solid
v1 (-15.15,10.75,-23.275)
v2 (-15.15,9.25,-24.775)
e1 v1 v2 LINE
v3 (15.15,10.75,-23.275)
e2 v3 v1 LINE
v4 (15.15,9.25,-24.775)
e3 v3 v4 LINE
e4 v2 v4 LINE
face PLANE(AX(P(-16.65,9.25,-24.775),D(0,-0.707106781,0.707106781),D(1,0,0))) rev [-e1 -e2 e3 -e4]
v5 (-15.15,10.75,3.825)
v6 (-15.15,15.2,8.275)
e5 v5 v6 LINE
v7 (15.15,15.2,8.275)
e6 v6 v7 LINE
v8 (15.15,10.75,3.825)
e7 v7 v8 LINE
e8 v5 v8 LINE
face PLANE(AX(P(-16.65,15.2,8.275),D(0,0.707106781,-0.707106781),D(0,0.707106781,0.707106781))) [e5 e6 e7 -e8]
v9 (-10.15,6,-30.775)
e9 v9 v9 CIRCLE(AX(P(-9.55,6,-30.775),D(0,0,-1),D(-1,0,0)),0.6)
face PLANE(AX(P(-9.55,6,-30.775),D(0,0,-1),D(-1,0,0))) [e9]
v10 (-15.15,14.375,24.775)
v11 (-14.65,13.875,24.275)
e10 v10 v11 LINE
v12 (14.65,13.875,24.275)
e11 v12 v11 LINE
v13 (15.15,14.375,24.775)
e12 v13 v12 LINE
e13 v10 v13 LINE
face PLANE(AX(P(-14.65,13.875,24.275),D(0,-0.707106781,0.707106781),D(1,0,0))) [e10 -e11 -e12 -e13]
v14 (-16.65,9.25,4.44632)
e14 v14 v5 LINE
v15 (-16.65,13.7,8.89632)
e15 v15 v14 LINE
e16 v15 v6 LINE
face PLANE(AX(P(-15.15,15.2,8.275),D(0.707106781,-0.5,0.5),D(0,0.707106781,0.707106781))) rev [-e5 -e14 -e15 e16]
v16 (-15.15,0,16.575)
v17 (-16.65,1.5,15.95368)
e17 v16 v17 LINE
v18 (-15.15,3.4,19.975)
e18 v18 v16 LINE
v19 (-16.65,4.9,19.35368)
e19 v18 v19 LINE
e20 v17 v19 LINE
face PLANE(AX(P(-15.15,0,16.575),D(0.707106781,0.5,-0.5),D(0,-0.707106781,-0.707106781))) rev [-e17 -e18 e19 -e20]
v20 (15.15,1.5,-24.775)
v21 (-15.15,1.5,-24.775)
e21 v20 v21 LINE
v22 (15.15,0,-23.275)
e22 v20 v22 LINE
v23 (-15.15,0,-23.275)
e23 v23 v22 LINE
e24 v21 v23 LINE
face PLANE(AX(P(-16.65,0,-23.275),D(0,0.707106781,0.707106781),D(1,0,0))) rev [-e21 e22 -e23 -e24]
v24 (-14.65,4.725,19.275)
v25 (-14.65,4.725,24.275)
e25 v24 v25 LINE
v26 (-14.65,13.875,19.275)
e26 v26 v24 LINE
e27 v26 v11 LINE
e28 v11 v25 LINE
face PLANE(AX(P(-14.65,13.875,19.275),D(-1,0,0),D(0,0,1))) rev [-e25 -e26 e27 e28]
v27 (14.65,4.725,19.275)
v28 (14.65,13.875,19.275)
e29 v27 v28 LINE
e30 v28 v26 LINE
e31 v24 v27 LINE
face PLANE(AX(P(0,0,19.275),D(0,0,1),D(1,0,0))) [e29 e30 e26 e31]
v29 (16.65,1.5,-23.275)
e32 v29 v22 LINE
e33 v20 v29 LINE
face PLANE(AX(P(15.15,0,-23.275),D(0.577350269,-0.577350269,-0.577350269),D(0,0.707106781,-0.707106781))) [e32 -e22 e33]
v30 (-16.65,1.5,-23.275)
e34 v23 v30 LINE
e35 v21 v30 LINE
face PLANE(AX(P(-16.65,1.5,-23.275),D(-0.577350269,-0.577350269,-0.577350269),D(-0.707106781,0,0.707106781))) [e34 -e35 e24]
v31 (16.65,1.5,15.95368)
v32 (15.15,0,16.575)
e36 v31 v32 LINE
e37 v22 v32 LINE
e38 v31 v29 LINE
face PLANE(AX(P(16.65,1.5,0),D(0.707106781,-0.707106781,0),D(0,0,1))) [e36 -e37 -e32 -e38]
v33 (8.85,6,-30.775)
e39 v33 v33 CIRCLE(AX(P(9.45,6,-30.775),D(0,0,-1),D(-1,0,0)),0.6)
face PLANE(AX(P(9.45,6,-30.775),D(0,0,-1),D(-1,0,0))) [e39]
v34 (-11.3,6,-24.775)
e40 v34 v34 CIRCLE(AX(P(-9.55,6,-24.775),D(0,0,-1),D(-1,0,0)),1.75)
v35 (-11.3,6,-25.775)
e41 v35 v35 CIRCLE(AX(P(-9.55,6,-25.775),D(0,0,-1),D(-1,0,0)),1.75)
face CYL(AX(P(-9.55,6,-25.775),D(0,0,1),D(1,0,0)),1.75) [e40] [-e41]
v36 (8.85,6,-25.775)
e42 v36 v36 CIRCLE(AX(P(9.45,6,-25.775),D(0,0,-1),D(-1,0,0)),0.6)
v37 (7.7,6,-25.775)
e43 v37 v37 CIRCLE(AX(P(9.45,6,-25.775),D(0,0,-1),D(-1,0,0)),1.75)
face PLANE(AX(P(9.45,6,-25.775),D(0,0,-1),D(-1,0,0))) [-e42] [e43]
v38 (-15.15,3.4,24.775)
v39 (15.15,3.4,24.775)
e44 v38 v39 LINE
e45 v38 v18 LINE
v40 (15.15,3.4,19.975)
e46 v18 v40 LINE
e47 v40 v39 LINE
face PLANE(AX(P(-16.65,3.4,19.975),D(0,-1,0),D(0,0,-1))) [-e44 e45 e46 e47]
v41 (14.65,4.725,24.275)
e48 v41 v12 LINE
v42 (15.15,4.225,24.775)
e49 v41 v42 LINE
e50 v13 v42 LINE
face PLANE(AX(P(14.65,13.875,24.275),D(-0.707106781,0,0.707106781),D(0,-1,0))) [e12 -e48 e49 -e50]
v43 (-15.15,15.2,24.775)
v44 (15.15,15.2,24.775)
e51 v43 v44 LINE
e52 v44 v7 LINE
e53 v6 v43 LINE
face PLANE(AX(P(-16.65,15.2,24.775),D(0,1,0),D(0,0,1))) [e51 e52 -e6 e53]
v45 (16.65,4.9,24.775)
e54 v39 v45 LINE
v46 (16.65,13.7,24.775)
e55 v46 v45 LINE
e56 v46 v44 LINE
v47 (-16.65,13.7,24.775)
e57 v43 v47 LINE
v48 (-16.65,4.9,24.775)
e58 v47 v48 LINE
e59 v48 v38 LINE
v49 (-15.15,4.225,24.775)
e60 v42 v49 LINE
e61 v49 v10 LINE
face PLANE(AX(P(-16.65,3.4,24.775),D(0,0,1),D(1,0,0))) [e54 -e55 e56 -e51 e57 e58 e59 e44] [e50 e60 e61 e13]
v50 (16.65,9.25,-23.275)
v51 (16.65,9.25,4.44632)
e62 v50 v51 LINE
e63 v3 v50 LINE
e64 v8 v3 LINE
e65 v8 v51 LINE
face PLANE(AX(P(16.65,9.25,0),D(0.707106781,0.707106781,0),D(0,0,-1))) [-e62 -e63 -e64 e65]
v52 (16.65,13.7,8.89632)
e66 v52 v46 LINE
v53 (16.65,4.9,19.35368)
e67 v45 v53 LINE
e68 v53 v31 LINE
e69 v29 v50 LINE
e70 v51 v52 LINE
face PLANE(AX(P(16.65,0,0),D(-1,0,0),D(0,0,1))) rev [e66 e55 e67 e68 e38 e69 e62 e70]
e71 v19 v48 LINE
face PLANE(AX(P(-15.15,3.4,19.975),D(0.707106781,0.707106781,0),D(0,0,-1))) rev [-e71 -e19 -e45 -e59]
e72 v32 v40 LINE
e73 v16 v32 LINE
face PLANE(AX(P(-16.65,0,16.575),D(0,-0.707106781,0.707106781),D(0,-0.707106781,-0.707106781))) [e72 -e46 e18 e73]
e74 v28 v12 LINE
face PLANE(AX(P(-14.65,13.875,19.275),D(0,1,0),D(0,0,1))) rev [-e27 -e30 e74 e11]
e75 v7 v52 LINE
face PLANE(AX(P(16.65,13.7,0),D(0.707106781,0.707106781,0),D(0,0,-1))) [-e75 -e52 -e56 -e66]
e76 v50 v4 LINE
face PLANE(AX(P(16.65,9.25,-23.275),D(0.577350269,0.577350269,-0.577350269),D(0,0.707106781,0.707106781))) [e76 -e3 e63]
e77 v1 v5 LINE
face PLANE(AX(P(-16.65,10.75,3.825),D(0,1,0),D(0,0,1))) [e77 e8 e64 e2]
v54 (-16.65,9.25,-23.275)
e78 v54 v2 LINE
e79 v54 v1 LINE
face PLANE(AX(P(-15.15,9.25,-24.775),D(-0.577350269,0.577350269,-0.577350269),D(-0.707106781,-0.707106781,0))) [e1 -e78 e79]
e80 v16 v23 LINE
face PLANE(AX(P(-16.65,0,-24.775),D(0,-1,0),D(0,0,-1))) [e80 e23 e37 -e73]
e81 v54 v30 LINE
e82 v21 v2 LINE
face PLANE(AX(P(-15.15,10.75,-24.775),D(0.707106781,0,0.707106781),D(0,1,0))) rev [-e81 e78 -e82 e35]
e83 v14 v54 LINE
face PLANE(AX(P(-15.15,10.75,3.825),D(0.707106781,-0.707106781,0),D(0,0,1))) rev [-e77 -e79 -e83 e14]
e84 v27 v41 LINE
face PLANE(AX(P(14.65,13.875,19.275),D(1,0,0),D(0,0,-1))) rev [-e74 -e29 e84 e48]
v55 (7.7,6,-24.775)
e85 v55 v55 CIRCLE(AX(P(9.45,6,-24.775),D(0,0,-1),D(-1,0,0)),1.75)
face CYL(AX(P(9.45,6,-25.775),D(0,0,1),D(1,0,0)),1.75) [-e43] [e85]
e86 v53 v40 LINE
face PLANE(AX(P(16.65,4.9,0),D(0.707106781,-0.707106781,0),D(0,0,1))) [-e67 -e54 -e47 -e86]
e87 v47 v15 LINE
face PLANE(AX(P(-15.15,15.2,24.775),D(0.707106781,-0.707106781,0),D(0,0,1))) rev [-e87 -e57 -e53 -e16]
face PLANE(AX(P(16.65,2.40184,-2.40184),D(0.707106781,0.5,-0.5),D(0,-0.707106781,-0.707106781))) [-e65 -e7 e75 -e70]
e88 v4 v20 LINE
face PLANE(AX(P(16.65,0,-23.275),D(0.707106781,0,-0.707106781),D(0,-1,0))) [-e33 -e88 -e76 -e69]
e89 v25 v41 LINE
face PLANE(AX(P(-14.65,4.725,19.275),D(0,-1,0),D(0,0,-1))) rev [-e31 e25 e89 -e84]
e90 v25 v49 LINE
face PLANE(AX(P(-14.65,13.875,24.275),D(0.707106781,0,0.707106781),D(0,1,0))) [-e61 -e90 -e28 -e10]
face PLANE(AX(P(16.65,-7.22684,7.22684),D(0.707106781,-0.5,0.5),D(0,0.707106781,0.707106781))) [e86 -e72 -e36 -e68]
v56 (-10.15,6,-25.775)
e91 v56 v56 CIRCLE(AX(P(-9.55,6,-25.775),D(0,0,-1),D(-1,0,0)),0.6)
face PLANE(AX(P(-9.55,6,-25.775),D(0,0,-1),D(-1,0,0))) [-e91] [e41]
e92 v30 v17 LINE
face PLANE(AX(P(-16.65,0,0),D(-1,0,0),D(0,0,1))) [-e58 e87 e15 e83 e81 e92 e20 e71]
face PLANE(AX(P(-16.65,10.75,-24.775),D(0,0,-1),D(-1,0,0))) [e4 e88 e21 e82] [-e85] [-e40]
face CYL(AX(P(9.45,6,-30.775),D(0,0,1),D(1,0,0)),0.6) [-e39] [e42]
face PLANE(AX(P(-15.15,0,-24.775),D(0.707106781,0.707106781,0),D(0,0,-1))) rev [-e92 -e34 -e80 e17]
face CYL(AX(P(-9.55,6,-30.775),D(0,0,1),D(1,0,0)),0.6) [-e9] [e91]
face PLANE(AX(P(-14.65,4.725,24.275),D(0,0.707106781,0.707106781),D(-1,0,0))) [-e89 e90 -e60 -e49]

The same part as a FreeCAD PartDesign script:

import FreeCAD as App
import Part
import Sketcher
from FreeCAD import Vector
Q = App.Units.Quantity


def edges_at(feature, points):
    """Names of the edges that pass closest to the given points."""
    edges = feature.Shape.Edges
    near = lambda p: min(range(len(edges)), key=lambda i: edges[i].distToShape(Part.Vertex(*p))[0])
    return sorted({f"Edge{near(p) + 1}" for p in points})


def add_polygon(sketch, points):
    """Adds a closed chain of lines whose ends are joined by coincident constraints."""
    first, n = sketch.GeometryCount, len(points)
    for a, b in zip(points, points[1:] + points[:1]):
        sketch.addGeometry(Part.LineSegment(App.Vector(*a, 0), App.Vector(*b, 0)), False)
    for i in range(n):
        sketch.addConstraint(Sketcher.Constraint("Coincident", first + i, 2, first + (i + 1) % n, 1))

doc = App.newDocument("Part")
body = doc.addObject("PartDesign::Body", "Body")

# Sketch on YZ plane
sketch1 = body.newObject("Sketcher::SketchObject", "Sketch")
sketch1.AttachmentSupport = (doc.getObject("YZ_Plane"), [""])
sketch1.MapMode = "FlatFace"
add_polygon(sketch1, [(15.2, 8.3), (15.2, 24.8), (3.4, 24.8), (3.4, 20), (0, 16.6), (0, -24.8), (10.8, -24.8), (10.8, 3.8)])  # lines 0-7
sketch1.addConstraint(Sketcher.Constraint("Vertical", 0))
sketch1.addConstraint(Sketcher.Constraint("Horizontal", 1))
sketch1.addConstraint(Sketcher.Constraint("Vertical", 2))
sketch1.addConstraint(Sketcher.Constraint("Vertical", 4))
sketch1.addConstraint(Sketcher.Constraint("Horizontal", 5))
sketch1.addConstraint(Sketcher.Constraint("Vertical", 6))
sketch1.addConstraint(Sketcher.Constraint("PointOnObject", 3, 2, -2))
sketch1.addConstraint(Sketcher.Constraint("Parallel", 3, 7))
sketch1.addConstraint(Sketcher.Constraint("Angle", 3, Q("-135 deg")))
sketch1.addConstraint(Sketcher.Constraint("DistanceX", 1, 2, 1, 1, 11.8))
sketch1.addConstraint(Sketcher.Constraint("DistanceY", 0, 1, 0, 2, 16.5))
sketch1.addConstraint(Sketcher.Constraint("DistanceY", 2, 2, 2, 1, 4.8))
sketch1.addConstraint(Sketcher.Constraint("DistanceY", 6, 1, 6, 2, 28.6))
sketch1.addConstraint(Sketcher.Constraint("DistanceX", 5, 1, 5, 2, 10.75))
sketch1.addConstraint(Sketcher.Constraint("DistanceX", -1, 1, 0, 2, 15.2))
sketch1.addConstraint(Sketcher.Constraint("DistanceY", -1, 1, 0, 2, 24.775))
pad1 = body.newObject("PartDesign::Pad", "Pad")
pad1.Profile = sketch1
pad1.Type = "TwoLengths"
pad1.Length = 16.65
pad1.Length2 = 16.65
doc.recompute()

chamfer = body.newObject("PartDesign::Chamfer", "Chamfer")
chamfer.Base = (pad1, edges_at(pad1, [
    (-16.65, 1.7, 18.275),
    (-16.65, 0, -4.1),
    (0, 10.75, -24.775),
    (0, 0, -24.775),
    (-16.65, 5.375, -24.775),
    (-16.65, 10.75, -10.475),
    (-16.65, 12.975, 6.05),
    (16.65, 3.4, 22.375),
    (16.65, 1.7, 18.275),
    (16.65, 0, -4.1),
    (16.65, 5.375, -24.775),
    (16.65, 10.75, -10.475),
    (16.65, 12.975, 6.05),
    (16.65, 15.2, 16.525),
    (-16.65, 15.2, 16.525),
    (-16.65, 3.4, 22.375),
]))
chamfer.Size = 1.5

# Sketch on XY plane
sketch2 = body.newObject("Sketcher::SketchObject", "Sketch001")
sketch2.AttachmentSupport = (doc.getObject("XY_Plane"), [""])
sketch2.MapMode = "FlatFace"
sketch2.AttachmentOffset = App.Placement(Vector(0, 0, -24.775), App.Rotation())
sketch2.addGeometry(Part.Circle(Vector(9.4, 6, 0), Vector(0, 0, 1), 1.8), False)
sketch2.addGeometry(Part.Circle(Vector(-9.6, 6, 0), Vector(0, 0, 1), 1.8), False)
sketch2.addConstraint(Sketcher.Constraint("Equal", 0, 1))
sketch2.addConstraint(Sketcher.Constraint("Horizontal", 0, 3, 1, 3))
sketch2.addConstraint(Sketcher.Constraint("Diameter", 0, 3.5))
sketch2.addConstraint(Sketcher.Constraint("DistanceY", -1, 1, 0, 3, 6.0))
sketch2.addConstraint(Sketcher.Constraint("DistanceX", 1, 3, 0, 3, 19.0))
sketch2.addConstraint(Sketcher.Constraint("DistanceX", -1, 1, 0, 3, 9.45))
pad2 = body.newObject("PartDesign::Pad", "Pad001")
pad2.Profile = sketch2
pad2.Length = 1
pad2.Reversed = True

# Sketch on XY plane
sketch3 = body.newObject("Sketcher::SketchObject", "Sketch002")
sketch3.AttachmentSupport = (doc.getObject("XY_Plane"), [""])
sketch3.MapMode = "FlatFace"
sketch3.AttachmentOffset = App.Placement(Vector(0, 0, -25.775), App.Rotation())
sketch3.addGeometry(Part.Circle(Vector(9.4, 6, 0), Vector(0, 0, 1), 0.6), False)
sketch3.addGeometry(Part.Circle(Vector(-9.6, 6, 0), Vector(0, 0, 1), 0.6), False)
sketch3.addConstraint(Sketcher.Constraint("Equal", 0, 1))
sketch3.addConstraint(Sketcher.Constraint("Horizontal", 0, 3, 1, 3))
sketch3.addConstraint(Sketcher.Constraint("Diameter", 0, 1.2))
sketch3.addConstraint(Sketcher.Constraint("DistanceY", -1, 1, 0, 3, 6.0))
sketch3.addConstraint(Sketcher.Constraint("DistanceX", 1, 3, 0, 3, 19.0))
sketch3.addConstraint(Sketcher.Constraint("DistanceX", -1, 1, 0, 3, 9.45))
pad3 = body.newObject("PartDesign::Pad", "Pad002")
pad3.Profile = sketch3
pad3.Length = 5
pad3.Reversed = True

# Sketch on XY plane
sketch4 = body.newObject("Sketcher::SketchObject", "Sketch003")
sketch4.AttachmentSupport = (doc.getObject("XY_Plane"), [""])
sketch4.MapMode = "FlatFace"
sketch4.AttachmentOffset = App.Placement(Vector(0, 0, 24.775), App.Rotation())
add_polygon(sketch4, [(-15, 14), (-15, 5), (15, 5), (15, 14)])  # lines 0-3
sketch4.addConstraint(Sketcher.Constraint("Vertical", 0))
sketch4.addConstraint(Sketcher.Constraint("Horizontal", 1))
sketch4.addConstraint(Sketcher.Constraint("Vertical", 2))
sketch4.addConstraint(Sketcher.Constraint("Horizontal", 3))
sketch4.addConstraint(Sketcher.Constraint("DistanceX", 1, 1, 1, 2, 29.3))
sketch4.addConstraint(Sketcher.Constraint("DistanceY", 0, 2, 0, 1, 9.15))
sketch4.addConstraint(Sketcher.Constraint("DistanceX", 0, 2, -1, 1, 14.65))
sketch4.addConstraint(Sketcher.Constraint("DistanceY", -1, 1, 0, 2, 4.725))
pocket1 = body.newObject("PartDesign::Pocket", "Pocket")
pocket1.Profile = sketch4
pocket1.Length = 5.5
doc.recompute()

chamfer2 = body.newObject("PartDesign::Chamfer", "Chamfer001")
chamfer2.Base = (pocket1, edges_at(pocket1, [
    (-14.65, 9.3, 24.775),
    (0, 4.725, 24.775),
    (14.65, 9.3, 24.775),
    (0, 13.875, 24.775),
]))
chamfer2.Size = 0.5

doc.recompute()
